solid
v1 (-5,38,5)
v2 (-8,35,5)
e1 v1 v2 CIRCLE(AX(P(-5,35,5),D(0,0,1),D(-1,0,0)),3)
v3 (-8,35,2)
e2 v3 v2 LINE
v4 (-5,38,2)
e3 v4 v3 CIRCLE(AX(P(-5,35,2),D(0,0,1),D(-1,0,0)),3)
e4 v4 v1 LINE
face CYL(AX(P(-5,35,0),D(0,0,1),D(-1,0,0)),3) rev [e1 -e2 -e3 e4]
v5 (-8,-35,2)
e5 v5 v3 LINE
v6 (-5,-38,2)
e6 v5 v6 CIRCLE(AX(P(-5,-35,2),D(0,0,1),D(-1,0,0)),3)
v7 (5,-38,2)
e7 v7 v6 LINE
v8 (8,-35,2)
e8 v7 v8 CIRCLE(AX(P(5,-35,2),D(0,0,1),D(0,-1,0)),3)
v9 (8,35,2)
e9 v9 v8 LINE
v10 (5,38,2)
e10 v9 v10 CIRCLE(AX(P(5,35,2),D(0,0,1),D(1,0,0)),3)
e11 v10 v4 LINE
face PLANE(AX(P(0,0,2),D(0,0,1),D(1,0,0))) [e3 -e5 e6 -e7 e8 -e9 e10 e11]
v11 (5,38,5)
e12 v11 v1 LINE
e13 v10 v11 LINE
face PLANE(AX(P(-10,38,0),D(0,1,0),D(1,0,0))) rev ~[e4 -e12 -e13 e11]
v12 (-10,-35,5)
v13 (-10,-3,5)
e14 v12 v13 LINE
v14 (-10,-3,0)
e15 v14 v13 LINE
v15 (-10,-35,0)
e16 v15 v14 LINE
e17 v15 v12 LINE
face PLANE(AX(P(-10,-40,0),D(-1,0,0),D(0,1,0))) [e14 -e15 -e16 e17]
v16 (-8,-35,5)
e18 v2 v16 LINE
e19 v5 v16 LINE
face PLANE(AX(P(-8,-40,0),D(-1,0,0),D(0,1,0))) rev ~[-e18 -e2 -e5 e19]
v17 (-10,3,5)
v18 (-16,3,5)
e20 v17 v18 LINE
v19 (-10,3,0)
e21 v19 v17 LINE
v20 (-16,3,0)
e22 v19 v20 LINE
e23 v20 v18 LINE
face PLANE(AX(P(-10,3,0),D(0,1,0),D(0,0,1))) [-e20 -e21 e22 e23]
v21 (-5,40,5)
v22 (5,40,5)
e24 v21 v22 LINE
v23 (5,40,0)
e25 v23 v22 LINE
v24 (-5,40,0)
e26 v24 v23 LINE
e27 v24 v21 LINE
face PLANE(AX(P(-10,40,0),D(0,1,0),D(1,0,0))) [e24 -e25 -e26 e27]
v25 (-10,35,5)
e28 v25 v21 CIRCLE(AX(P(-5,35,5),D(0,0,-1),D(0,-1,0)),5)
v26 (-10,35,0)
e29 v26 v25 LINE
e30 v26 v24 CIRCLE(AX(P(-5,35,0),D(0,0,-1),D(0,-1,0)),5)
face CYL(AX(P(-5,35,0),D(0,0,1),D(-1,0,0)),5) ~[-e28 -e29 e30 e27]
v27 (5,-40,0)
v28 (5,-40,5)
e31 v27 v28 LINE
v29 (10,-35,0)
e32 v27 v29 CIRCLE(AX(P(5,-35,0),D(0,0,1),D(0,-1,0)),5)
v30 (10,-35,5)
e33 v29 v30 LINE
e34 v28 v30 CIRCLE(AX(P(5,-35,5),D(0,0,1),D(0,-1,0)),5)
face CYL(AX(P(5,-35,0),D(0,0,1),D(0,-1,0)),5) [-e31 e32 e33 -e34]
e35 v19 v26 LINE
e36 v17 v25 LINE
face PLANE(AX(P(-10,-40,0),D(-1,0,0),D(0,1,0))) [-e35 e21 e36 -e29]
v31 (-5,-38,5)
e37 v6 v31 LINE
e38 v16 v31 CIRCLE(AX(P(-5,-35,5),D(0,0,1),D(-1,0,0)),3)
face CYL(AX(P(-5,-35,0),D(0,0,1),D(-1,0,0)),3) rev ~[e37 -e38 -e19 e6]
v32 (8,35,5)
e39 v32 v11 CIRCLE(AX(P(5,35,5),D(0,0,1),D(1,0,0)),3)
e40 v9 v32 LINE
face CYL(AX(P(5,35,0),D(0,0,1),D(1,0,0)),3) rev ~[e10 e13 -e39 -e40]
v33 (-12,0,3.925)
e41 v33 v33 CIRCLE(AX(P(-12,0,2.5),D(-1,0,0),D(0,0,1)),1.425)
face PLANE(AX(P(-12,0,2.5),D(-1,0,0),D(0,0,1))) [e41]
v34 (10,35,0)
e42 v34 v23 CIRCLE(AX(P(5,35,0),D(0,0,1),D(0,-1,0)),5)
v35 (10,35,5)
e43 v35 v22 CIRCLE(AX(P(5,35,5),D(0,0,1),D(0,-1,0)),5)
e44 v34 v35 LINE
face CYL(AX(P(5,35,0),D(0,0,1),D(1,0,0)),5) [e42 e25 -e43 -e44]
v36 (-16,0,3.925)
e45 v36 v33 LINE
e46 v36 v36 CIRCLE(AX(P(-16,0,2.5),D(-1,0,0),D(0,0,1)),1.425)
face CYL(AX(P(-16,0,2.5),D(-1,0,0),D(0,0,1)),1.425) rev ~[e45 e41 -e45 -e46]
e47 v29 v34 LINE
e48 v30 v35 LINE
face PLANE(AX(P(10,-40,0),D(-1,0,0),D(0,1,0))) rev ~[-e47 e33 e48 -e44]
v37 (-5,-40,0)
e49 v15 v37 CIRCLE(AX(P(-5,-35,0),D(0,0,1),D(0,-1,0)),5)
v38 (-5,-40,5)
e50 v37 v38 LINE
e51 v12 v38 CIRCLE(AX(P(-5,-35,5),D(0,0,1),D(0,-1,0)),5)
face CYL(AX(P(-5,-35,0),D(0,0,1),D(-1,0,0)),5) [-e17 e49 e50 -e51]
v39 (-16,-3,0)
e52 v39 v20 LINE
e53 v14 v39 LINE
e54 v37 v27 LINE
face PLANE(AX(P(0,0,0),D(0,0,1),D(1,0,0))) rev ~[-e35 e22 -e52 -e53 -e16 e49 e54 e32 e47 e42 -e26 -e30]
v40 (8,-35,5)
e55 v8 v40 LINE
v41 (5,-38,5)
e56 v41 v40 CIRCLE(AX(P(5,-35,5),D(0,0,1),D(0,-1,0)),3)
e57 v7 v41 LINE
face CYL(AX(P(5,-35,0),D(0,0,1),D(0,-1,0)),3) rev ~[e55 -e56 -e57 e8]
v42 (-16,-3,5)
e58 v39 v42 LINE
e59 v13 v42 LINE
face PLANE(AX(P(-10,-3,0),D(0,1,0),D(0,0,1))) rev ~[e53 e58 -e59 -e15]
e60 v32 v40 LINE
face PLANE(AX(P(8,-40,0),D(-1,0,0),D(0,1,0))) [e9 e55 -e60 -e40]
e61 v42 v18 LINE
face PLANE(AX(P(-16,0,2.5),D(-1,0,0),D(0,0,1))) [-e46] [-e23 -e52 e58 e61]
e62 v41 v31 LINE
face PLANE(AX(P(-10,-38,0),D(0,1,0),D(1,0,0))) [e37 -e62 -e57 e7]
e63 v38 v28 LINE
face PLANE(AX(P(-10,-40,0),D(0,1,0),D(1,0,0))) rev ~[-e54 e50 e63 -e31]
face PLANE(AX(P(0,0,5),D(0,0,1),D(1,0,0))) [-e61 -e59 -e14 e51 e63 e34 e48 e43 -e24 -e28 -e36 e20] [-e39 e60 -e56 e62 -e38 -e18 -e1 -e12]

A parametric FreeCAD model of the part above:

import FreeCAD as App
import Part
import Sketcher
from FreeCAD import Vector


def edges_at(feature, points):
    """Names of the edges that pass closest to the given points."""
    edges = feature.Shape.Edges
    near = lambda p: min(range(len(edges)), key=lambda i: edges[i].distToShape(Part.Vertex(*p))[0])
    return sorted({f"Edge{near(p) + 1}" for p in points})


def faces_at(feature, points):
    """Names of the faces that lie closest to the given points."""
    faces = feature.Shape.Faces
    near = lambda p: min(range(len(faces)), key=lambda i: faces[i].distToShape(Part.Vertex(*p))[0])
    return sorted({f"Face{near(p) + 1}" for p in points})


def add_polygon(sketch, points):
    """Adds a closed chain of lines whose ends are joined by coincident constraints."""
    first, n = sketch.GeometryCount, len(points)
    for a, b in zip(points, points[1:] + points[:1]):
        sketch.addGeometry(Part.LineSegment(App.Vector(*a, 0), App.Vector(*b, 0)), False)
    for i in range(n):
        sketch.addConstraint(Sketcher.Constraint("Coincident", first + i, 2, first + (i + 1) % n, 1))

doc = App.newDocument("Part")
params = doc.addObject("Spreadsheet::Sheet", "Params")
for row, (alias, value) in enumerate([
    ("sketch1_width", "20 mm"),
    ("sketch1_height", "80 mm"),
    ("pad1_length", "5 mm"),
    ("fillet_radius", "5 mm"),
    ("thickness_wall", "2 mm"),
    ("sketch2_width", "6 mm"),
    ("sketch2_height", "5 mm"),
    ("pad2_length", "6 mm"),
    ("sketch3_diameter", "2.85 mm"),
    ("pocket1_length", "4 mm"),
], start=1):
    params.set(f"A{row}", alias)
    params.set(f"B{row}", "=" + value)
    params.setAlias(f"B{row}", alias)

body = doc.addObject("PartDesign::Body", "Body")

sketch1 = body.newObject("Sketcher::SketchObject", "Sketch")
sketch1.AttachmentSupport = (doc.getObject("XY_Plane"), [""])
sketch1.MapMode = "FlatFace"
add_polygon(sketch1, [(-10, 40), (-10, -40), (10, -40), (10, 40)])
sketch1.addConstraint([
    Sketcher.Constraint("Vertical", 0),
    Sketcher.Constraint("Horizontal", 1),
    Sketcher.Constraint("Vertical", 2),
    Sketcher.Constraint("Horizontal", 3),
    Sketcher.Constraint("Symmetric", 0, 2, 2, 2, -1, 1),
    Sketcher.Constraint("DistanceX", 1, 1, 1, 2, 20.0),
    Sketcher.Constraint("DistanceY", 0, 2, 0, 1, 80.0),
])
sketch1.setExpression("Constraints[9]", "Params.sketch1_width")
sketch1.setExpression("Constraints[10]", "Params.sketch1_height")
pad1 = body.newObject("PartDesign::Pad", "Pad")
pad1.Profile = sketch1
pad1.setExpression("Length", "Params.pad1_length")
doc.recompute()

fillet = body.newObject("PartDesign::Fillet", "Fillet")
fillet.Base = (pad1, edges_at(pad1, [
    (-10, 40, 2.5),
    (10, 40, 2.5),
    (10, -40, 2.5),
    (-10, -40, 2.5),
]))
fillet.setExpression("Radius", "Params.fillet_radius")
doc.recompute()

thickness = body.newObject("PartDesign::Thickness", "Thickness")
thickness.Base = (fillet, faces_at(fillet, [(0, 0, 5)]))
thickness.setExpression("Value", "Params.thickness_wall")
thickness.Reversed = True
thickness.Join = "Intersection"

sketch2 = body.newObject("Sketcher::SketchObject", "Sketch001")
sketch2.AttachmentSupport = (doc.getObject("YZ_Plane"), [""])
sketch2.MapMode = "FlatFace"
sketch2.AttachmentOffset = App.Placement(Vector(0, 0, -10), App.Rotation())
add_polygon(sketch2, [(3, 0), (-3, 0), (-3, 5), (3, 5)])
sketch2.addConstraint([
    Sketcher.Constraint("Horizontal", 0),
    Sketcher.Constraint("Vertical", 1),
    Sketcher.Constraint("Horizontal", 2),
    Sketcher.Constraint("Vertical", 3),
    Sketcher.Constraint("Symmetric", 0, 2, 3, 2, -1, 1),
    Sketcher.Constraint("DistanceX", 0, 2, 0, 1, 6.0),
    Sketcher.Constraint("DistanceY", 1, 1, 1, 2, 5.0),
])
sketch2.setExpression("Constraints[9]", "Params.sketch2_width")
sketch2.setExpression("Constraints[10]", "Params.sketch2_height")
pad2 = body.newObject("PartDesign::Pad", "Pad001")
pad2.Profile = sketch2
pad2.setExpression("Length", "Params.pad2_length")
pad2.Reversed = True

sketch3 = body.newObject("Sketcher::SketchObject", "Sketch002")
sketch3.AttachmentSupport = (doc.getObject("YZ_Plane"), [""])
sketch3.MapMode = "FlatFace"
sketch3.AttachmentOffset = App.Placement(Vector(0, 0, -16), App.Rotation())
sketch3.addGeometry(Part.Circle(Vector(0, 2.5, 0), Vector(0, 0, 1), 1.4), False)
sketch3.addConstraint([
    Sketcher.Constraint("PointOnObject", 0, 3, -2),
    Sketcher.Constraint("Diameter", 0, 2.85),
    Sketcher.Constraint("DistanceY", -1, 1, 0, 3, 2.5),
])
sketch3.setExpression("Constraints[1]", "Params.sketch3_diameter")
pocket1 = body.newObject("PartDesign::Pocket", "Pocket")
pocket1.Profile = sketch3
pocket1.setExpression("Length", "Params.pocket1_length")
pocket1.Reversed = True

doc.recompute()
